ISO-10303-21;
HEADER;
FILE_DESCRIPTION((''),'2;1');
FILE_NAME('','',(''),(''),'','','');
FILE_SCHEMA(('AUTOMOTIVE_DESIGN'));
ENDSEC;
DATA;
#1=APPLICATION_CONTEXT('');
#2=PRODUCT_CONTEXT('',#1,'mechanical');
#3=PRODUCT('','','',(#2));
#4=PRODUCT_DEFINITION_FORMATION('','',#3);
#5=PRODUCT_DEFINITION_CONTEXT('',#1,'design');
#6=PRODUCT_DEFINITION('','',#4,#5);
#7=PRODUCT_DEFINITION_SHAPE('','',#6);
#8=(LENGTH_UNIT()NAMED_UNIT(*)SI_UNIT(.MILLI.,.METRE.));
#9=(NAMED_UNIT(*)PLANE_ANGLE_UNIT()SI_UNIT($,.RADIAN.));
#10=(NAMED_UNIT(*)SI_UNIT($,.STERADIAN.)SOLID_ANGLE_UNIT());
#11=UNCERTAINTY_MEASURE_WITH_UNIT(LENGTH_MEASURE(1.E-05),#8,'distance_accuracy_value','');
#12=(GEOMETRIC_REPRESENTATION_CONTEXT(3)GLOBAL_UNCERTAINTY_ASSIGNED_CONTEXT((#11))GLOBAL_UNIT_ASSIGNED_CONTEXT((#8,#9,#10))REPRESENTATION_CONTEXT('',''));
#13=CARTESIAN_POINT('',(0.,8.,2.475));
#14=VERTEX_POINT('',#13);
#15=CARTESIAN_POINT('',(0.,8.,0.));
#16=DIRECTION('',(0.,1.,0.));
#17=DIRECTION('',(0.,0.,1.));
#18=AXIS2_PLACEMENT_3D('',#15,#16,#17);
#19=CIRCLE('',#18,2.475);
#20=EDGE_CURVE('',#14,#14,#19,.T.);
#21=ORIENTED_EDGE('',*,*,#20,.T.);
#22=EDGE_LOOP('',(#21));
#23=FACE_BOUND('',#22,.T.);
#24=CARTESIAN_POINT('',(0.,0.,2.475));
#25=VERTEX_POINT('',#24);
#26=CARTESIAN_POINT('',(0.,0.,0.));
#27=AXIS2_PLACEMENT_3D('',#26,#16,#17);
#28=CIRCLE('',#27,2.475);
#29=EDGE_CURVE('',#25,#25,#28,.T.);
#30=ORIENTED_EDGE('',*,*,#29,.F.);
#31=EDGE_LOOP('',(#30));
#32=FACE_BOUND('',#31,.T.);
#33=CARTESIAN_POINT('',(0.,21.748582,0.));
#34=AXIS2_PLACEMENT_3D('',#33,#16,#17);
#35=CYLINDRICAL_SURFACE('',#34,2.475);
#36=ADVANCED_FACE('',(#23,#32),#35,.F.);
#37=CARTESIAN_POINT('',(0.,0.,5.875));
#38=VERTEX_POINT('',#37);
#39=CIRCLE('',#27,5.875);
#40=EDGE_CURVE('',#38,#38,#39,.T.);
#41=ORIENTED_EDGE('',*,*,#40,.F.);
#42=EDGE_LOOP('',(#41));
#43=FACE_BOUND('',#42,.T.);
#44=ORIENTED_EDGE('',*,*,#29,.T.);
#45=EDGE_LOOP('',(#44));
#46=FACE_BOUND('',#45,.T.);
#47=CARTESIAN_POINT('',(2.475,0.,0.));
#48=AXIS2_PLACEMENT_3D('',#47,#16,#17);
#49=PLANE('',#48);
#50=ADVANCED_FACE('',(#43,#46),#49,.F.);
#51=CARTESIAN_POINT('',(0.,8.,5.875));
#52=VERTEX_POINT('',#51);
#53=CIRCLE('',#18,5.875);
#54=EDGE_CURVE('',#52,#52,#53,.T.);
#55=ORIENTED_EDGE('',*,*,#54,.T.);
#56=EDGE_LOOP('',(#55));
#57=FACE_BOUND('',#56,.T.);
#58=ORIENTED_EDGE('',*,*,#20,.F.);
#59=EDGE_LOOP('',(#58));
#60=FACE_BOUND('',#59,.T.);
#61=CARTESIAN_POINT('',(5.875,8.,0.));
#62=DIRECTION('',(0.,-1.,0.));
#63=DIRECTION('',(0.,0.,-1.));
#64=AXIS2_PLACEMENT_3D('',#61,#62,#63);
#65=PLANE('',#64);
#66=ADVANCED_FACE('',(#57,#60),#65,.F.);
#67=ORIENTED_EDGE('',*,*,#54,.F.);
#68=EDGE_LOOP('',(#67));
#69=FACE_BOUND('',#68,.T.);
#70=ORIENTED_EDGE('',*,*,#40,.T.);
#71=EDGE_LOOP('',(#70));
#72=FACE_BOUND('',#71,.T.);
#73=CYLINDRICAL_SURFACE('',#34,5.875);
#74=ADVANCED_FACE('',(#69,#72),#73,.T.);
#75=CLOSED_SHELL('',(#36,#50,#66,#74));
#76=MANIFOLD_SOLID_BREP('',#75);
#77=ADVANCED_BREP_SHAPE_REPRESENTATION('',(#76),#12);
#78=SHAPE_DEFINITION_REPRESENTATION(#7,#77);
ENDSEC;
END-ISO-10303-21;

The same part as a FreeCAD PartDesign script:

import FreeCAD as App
import Part
import Sketcher

V = App.Vector
Q = App.Units.Quantity

doc = App.newDocument("Part")
params = doc.addObject("Spreadsheet::Sheet", "Params")
for row, (alias, value) in enumerate([
    ("sketch1_height", "8 mm"),
    ("sketch1_width", "3.4 mm"),
    ("revolution_angle", "360 deg"),
], start=1):
    params.set(f"A{row}", alias)
    params.set(f"B{row}", "=" + value)
    params.setAlias(f"B{row}", alias)

body = doc.addObject("PartDesign::Body", "Body")

sketch1 = body.newObject("Sketcher::SketchObject", "Sketch")
sketch1.AttachmentSupport = (doc.getObject("XY_Plane"), [""])
sketch1.MapMode = "FlatFace"
sketch1.addGeometry([
    Part.LineSegment(V(2.5, 8, 0), V(2.5, 0, 0)),
    Part.LineSegment(V(2.5, 0, 0), V(5.9, 0, 0)),
    Part.LineSegment(V(5.9, 0, 0), V(5.9, 8, 0)),
    Part.LineSegment(V(5.9, 8, 0), V(2.5, 8, 0)),
], False)
sketch1.addConstraint([
    Sketcher.Constraint("Coincident", 0, 2, 1, 1),
    Sketcher.Constraint("Coincident", 1, 2, 2, 1),
    Sketcher.Constraint("Coincident", 2, 2, 3, 1),
    Sketcher.Constraint("Coincident", 3, 2, 0, 1),
    Sketcher.Constraint("Vertical", 0),
    Sketcher.Constraint("Horizontal", 1),
    Sketcher.Constraint("Vertical", 2),
    Sketcher.Constraint("Horizontal", 3),
    Sketcher.Constraint("PointOnObject", 0, 2, -1),
    Sketcher.Constraint("DistanceY", 0, 2, 0, 1, Q("8 mm")),
    Sketcher.Constraint("DistanceX", 1, 1, 1, 2, Q("3.4 mm")),
    Sketcher.Constraint("DistanceX", -1, 1, 0, 2, Q("2.475 mm")),
])
sketch1.setExpression("Constraints[9]", "Params.sketch1_height")
sketch1.setExpression("Constraints[10]", "Params.sketch1_width")
revolution = body.newObject("PartDesign::Revolution", "Revolution")
revolution.Profile = sketch1
revolution.ReferenceAxis = (sketch1, ["V_Axis"])
revolution.setExpression("Angle", "Params.revolution_angle")

doc.recompute()
